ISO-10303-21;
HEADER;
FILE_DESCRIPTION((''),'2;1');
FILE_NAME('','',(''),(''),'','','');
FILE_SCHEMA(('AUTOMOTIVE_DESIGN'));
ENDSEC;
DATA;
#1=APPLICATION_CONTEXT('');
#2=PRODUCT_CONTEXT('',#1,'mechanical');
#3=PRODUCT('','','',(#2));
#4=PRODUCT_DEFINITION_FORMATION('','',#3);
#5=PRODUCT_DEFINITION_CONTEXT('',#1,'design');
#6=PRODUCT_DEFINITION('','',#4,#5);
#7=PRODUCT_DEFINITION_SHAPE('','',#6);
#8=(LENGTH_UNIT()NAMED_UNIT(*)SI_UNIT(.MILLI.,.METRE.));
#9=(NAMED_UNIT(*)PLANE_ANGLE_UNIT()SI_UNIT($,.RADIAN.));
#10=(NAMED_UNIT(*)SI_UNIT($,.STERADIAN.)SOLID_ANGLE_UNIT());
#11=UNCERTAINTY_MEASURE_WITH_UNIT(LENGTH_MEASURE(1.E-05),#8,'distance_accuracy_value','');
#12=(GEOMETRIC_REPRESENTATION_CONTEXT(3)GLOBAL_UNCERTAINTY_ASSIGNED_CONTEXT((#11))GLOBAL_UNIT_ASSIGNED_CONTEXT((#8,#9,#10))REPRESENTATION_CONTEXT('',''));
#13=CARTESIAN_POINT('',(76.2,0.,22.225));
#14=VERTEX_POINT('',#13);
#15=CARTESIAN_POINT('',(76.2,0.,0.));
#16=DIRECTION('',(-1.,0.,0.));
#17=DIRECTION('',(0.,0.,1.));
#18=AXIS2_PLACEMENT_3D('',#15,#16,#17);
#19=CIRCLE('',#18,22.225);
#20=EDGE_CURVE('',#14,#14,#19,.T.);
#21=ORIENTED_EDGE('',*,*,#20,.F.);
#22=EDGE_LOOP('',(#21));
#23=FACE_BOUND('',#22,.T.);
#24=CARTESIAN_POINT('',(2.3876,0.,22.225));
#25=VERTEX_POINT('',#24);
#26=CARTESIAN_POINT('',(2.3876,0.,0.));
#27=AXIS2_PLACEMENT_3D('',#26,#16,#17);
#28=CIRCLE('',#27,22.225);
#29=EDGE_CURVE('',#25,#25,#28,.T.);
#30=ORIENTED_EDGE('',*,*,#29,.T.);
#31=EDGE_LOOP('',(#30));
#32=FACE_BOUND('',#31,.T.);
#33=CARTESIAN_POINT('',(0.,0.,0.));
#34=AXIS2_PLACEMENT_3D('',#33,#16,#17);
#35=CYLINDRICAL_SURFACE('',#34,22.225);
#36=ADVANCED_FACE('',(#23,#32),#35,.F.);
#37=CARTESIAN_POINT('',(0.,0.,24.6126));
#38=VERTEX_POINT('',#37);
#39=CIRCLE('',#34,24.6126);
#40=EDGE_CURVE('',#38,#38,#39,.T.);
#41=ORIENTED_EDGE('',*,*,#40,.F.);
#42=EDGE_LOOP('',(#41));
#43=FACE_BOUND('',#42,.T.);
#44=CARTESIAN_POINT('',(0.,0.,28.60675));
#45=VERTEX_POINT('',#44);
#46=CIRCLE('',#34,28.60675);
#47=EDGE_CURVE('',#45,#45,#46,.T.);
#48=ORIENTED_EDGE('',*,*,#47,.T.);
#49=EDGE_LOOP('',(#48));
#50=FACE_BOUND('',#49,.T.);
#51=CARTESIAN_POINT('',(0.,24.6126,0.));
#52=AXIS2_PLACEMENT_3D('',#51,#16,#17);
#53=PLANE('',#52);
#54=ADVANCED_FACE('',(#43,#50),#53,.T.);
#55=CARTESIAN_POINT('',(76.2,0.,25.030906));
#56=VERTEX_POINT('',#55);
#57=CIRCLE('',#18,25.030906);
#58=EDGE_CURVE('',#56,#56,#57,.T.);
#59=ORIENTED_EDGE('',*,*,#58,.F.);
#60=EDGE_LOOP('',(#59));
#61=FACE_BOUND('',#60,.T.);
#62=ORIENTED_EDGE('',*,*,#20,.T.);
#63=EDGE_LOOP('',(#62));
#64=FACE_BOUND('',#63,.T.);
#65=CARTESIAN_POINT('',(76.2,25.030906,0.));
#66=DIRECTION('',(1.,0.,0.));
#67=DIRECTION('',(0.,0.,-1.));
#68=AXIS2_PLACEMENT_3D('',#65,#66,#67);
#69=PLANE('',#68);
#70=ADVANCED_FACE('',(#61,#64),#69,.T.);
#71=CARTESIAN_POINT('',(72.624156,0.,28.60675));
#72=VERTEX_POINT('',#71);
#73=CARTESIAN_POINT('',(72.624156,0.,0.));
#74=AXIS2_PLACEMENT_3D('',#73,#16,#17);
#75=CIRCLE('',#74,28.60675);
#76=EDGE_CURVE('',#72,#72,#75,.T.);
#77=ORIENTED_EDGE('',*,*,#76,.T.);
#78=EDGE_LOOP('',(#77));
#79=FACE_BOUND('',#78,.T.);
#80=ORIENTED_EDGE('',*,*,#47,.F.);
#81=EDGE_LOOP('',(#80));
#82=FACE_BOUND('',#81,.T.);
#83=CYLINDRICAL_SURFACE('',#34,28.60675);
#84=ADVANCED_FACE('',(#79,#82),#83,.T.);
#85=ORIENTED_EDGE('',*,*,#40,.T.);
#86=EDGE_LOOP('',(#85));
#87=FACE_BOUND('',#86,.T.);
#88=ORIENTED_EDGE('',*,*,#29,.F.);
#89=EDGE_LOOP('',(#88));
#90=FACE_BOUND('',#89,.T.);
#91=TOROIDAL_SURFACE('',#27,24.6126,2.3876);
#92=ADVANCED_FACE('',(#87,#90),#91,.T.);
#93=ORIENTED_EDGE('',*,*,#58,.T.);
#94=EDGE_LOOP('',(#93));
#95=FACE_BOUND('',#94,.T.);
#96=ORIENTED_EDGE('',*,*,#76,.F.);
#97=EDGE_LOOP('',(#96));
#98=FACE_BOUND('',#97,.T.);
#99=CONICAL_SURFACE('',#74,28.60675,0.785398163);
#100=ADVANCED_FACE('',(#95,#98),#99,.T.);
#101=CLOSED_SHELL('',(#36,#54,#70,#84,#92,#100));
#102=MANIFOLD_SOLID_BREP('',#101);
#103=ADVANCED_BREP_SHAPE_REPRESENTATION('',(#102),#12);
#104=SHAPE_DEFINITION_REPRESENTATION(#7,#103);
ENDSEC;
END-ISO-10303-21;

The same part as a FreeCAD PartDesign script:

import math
import FreeCAD as App
import Part
import Sketcher

V = App.Vector
Q = App.Units.Quantity

doc = App.newDocument("Part")
params = doc.addObject("Spreadsheet::Sheet", "Params")
for row, (alias, value) in enumerate([
    ("sketch1_radius", "0.094 in"),
    ("revolution_angle", "360 deg"),
], start=1):
    params.set(f"A{row}", alias)
    params.set(f"B{row}", "=" + value)
    params.setAlias(f"B{row}", alias)

body = doc.addObject("PartDesign::Body", "Body")

# Sketch on XY plane
sketch1 = body.newObject("Sketcher::SketchObject", "Sketch")
sketch1.AttachmentSupport = (doc.getObject("XY_Plane"), [""])
sketch1.MapMode = "FlatFace"
sketch1.addGeometry(Part.LineSegment(V(0, 28.60675, 0), V(0, 24.6126, 0)), False)
sketch1.addGeometry(Part.ArcOfCircle(Part.Circle(V(2.3876, 24.6126, 0), V(0, 0, 1), 2.3876), math.radians(180), math.radians(270)), False)
sketch1.addGeometry(Part.LineSegment(V(2.3876, 22.225, 0), V(76.2, 22.225, 0)), False)
sketch1.addGeometry(Part.LineSegment(V(76.2, 22.225, 0), V(76.2, 25.030906, 0)), False)
sketch1.addGeometry(Part.LineSegment(V(76.2, 25.030906, 0), V(72.624156, 28.60675, 0)), False)
sketch1.addGeometry(Part.LineSegment(V(72.624156, 28.60675, 0), V(0, 28.60675, 0)), False)
sketch1.addConstraint(Sketcher.Constraint("Tangent", 0, 2, 1, 1))
sketch1.addConstraint(Sketcher.Constraint("Tangent", 1, 2, 2, 1))
sketch1.addConstraint(Sketcher.Constraint("Coincident", 2, 2, 3, 1))
sketch1.addConstraint(Sketcher.Constraint("Coincident", 3, 2, 4, 1))
sketch1.addConstraint(Sketcher.Constraint("Coincident", 4, 2, 5, 1))
sketch1.addConstraint(Sketcher.Constraint("Coincident", 5, 2, 0, 1))
sketch1.addConstraint(Sketcher.Constraint("Vertical", 0))
sketch1.addConstraint(Sketcher.Constraint("Horizontal", 2))
sketch1.addConstraint(Sketcher.Constraint("Vertical", 3))
sketch1.addConstraint(Sketcher.Constraint("Horizontal", 5))
sketch1.addConstraint(Sketcher.Constraint("PointOnObject", 0, 2, -2))
sketch1.addConstraint(Sketcher.Constraint("DistanceX", -1, 1, 2, 2, Q("3 in")))
sketch1.addConstraint(Sketcher.Constraint("Angle", 4, Q("135 deg")))
sketch1.addConstraint(Sketcher.Constraint("Radius", 1, Q("0.094 in")))
sketch1.addConstraint(Sketcher.Constraint("DistanceY", -1, 1, 1, 3, Q("0.969 in")))
sketch1.addConstraint(Sketcher.Constraint("DistanceY", 0, 2, 0, 1, 3.99415))
sketch1.addConstraint(Sketcher.Constraint("DistanceX", 5, 2, 5, 1, 72.624156))
sketch1.setExpression("Constraints[13]", "Params.sketch1_radius")
revolution = body.newObject("PartDesign::Revolution", "Revolution")
revolution.Profile = sketch1
revolution.ReferenceAxis = (sketch1, ["H_Axis"])
revolution.setExpression("Angle", "Params.revolution_angle")

doc.recompute()
